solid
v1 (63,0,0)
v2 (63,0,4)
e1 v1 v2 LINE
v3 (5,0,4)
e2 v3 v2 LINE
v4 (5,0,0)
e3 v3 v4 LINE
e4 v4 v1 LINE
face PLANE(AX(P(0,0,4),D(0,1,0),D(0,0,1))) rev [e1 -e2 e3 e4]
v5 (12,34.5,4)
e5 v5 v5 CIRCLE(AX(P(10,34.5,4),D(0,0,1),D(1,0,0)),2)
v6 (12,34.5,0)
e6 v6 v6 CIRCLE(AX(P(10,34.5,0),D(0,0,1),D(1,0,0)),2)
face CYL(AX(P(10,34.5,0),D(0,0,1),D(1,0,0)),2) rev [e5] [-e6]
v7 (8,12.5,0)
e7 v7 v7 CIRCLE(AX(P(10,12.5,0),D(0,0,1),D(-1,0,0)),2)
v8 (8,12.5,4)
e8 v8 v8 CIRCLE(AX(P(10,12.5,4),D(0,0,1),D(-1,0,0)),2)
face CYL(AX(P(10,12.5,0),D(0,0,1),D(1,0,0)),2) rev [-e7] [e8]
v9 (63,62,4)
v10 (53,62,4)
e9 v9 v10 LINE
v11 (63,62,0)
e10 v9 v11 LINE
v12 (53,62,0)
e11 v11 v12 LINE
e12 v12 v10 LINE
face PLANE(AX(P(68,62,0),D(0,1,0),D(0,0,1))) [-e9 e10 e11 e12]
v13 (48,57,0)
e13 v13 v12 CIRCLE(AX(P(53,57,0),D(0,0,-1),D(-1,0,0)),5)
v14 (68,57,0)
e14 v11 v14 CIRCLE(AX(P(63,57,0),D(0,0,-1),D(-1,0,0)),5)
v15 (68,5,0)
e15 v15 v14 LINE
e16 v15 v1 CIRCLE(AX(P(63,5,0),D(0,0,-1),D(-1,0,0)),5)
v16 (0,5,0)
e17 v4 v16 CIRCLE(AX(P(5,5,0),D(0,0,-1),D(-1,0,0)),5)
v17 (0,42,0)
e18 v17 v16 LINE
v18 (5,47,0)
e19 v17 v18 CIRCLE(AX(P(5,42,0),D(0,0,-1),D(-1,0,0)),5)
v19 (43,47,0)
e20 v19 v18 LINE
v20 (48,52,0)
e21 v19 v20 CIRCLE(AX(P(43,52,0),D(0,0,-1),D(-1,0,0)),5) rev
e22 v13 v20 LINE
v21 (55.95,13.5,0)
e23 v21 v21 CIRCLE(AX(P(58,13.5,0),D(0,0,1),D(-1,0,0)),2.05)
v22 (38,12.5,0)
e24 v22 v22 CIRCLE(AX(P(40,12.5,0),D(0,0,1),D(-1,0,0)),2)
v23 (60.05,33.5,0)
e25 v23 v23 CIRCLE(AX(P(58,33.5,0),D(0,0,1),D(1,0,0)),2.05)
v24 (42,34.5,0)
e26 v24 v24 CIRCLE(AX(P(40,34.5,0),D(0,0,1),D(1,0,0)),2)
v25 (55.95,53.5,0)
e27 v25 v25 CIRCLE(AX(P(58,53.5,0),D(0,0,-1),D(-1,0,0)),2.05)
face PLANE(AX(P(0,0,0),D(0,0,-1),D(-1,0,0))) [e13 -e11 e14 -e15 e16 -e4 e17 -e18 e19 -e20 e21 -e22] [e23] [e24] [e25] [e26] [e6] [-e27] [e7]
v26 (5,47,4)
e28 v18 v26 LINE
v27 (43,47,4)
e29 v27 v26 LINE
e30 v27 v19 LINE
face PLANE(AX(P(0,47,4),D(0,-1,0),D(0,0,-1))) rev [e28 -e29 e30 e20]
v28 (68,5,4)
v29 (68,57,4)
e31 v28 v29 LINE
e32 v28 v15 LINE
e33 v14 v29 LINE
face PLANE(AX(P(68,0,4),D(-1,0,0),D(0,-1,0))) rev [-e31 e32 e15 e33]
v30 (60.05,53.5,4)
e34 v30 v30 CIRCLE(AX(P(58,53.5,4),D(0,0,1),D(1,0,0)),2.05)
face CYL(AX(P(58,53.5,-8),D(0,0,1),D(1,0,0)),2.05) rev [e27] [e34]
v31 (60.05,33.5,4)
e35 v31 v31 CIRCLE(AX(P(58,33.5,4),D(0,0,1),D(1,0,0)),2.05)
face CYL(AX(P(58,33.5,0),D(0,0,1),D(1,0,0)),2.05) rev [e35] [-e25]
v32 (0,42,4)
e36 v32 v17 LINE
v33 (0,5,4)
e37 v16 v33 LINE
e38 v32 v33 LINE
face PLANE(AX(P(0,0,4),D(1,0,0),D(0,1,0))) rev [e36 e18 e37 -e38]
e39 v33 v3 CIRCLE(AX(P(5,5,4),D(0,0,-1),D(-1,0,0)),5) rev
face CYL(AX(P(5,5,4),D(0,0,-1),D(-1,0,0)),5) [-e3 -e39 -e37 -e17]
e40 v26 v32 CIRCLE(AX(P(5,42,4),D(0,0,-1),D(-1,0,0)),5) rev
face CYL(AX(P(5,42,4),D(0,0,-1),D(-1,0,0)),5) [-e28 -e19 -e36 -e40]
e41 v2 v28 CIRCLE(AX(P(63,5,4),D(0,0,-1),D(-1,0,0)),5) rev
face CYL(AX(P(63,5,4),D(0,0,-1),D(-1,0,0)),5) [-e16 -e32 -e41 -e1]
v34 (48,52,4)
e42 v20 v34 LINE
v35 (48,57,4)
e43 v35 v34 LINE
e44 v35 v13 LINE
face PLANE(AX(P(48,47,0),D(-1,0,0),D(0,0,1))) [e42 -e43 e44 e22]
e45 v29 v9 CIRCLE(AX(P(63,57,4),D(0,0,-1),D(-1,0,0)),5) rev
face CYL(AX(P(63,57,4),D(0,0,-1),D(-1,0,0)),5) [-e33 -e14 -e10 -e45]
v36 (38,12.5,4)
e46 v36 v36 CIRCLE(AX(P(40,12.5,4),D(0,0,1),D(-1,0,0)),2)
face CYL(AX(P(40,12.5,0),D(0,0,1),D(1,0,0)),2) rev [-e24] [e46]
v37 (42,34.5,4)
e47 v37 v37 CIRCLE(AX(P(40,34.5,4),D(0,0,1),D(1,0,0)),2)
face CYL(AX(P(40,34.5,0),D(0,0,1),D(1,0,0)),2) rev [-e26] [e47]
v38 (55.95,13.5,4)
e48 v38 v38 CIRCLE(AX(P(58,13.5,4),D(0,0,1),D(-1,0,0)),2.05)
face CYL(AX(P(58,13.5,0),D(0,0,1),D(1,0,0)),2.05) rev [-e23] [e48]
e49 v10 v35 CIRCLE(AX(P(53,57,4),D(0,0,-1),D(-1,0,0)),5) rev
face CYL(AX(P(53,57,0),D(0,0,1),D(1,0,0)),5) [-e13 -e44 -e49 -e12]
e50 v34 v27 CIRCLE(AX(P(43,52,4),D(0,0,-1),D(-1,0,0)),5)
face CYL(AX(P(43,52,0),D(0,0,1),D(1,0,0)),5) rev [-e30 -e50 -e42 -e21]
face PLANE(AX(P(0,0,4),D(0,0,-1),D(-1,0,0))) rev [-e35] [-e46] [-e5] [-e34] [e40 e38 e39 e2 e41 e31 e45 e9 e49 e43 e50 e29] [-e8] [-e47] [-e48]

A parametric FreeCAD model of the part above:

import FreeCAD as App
import Part
import Sketcher

V = App.Vector
Q = App.Units.Quantity


def edges_at(feature, points):
    """Names of the edges that pass closest to the given points."""
    edges = feature.Shape.Edges
    near = lambda p: min(range(len(edges)), key=lambda i: edges[i].distToShape(Part.Vertex(*p))[0])
    return sorted({f"Edge{near(p) + 1}" for p in points})

doc = App.newDocument("Part")
body = doc.addObject("PartDesign::Body", "Body")

# Sketch on XY plane
sketch1 = doc.addObject("Sketcher::SketchObject", "Sketch")
body.addObject(sketch1)
sketch1.AttachmentSupport = (doc.XY_Plane, [""])
sketch1.MapMode = "FlatFace"
sketch1.addGeometry([
    Part.LineSegment(V(0, 47, 0), V(0, 0, 0)),
    Part.LineSegment(V(0, 0, 0), V(68, 0, 0)),
    Part.LineSegment(V(68, 0, 0), V(68, 47, 0)),
    Part.LineSegment(V(68, 47, 0), V(0, 47, 0)),
], False)
sketch1.addConstraint([
    Sketcher.Constraint("Coincident", 0, 2, 1, 1),
    Sketcher.Constraint("Coincident", 1, 2, 2, 1),
    Sketcher.Constraint("Coincident", 2, 2, 3, 1),
    Sketcher.Constraint("Coincident", 3, 2, 0, 1),
    Sketcher.Constraint("Vertical", 0),
    Sketcher.Constraint("Horizontal", 1),
    Sketcher.Constraint("Vertical", 2),
    Sketcher.Constraint("Horizontal", 3),
    Sketcher.Constraint("Coincident", 0, 2, -1, 1),
    Sketcher.Constraint("DistanceX", 1, 1, 1, 2, Q("68 mm")),
    Sketcher.Constraint("DistanceY", 0, 2, 0, 1, Q("47 mm")),
])
pad1 = doc.addObject("PartDesign::Pad", "Pad")
body.addObject(pad1)
pad1.Profile = sketch1
pad1.Length = 4

# Sketch on XY plane
sketch2 = doc.addObject("Sketcher::SketchObject", "Sketch001")
body.addObject(sketch2)
sketch2.AttachmentSupport = (doc.XY_Plane, [""])
sketch2.MapMode = "FlatFace"
sketch2.AttachmentOffset = App.Placement(V(0, 0, 4), App.Rotation())
sketch2.addGeometry([
    Part.Circle(V(10, 34.5, 0), V(0, 0, 1), 2),  # 0
    Part.Circle(V(10, 12.5, 0), V(0, 0, 1), 2),  # 1
    Part.Circle(V(40, 34.5, 0), V(0, 0, 1), 2),  # 2
    Part.Circle(V(40, 12.5, 0), V(0, 0, 1), 2),  # 3
    Part.Circle(V(58, 33.5, 0), V(0, 0, 1), 2),  # 4
    Part.Circle(V(58, 13.5, 0), V(0, 0, 1), 2),  # 5
], False)
sketch2.addConstraint([
    Sketcher.Constraint("Equal", 0, 1),
    Sketcher.Constraint("Equal", 1, 2),
    Sketcher.Constraint("Equal", 2, 3),
    Sketcher.Constraint("Equal", 4, 5),
    Sketcher.Constraint("Horizontal", 0, 3, 2, 3),
    Sketcher.Constraint("Horizontal", 1, 3, 3, 3),
    Sketcher.Constraint("Vertical", 0, 3, 1, 3),
    Sketcher.Constraint("Vertical", 2, 3, 3, 3),
    Sketcher.Constraint("Vertical", 4, 3, 5, 3),
    Sketcher.Constraint("Diameter", 0, Q("4 mm")),
    Sketcher.Constraint("Diameter", 4, Q("4.1 mm")),
    Sketcher.Constraint("DistanceX", -1, 1, 0, 3, Q("10 mm")),
    Sketcher.Constraint("DistanceX", -1, 1, 2, 3, Q("40 mm")),
    Sketcher.Constraint("DistanceX", -1, 1, 4, 3, Q("58 mm")),
    Sketcher.Constraint("DistanceY", 1, 3, 0, 3, Q("22 mm")),
    Sketcher.Constraint("DistanceY", 4, 3, 2, 3, Q("1 mm")),
    Sketcher.Constraint("DistanceY", 3, 3, 5, 3, Q("1 mm")),
    Sketcher.Constraint("DistanceY", -1, 1, 0, 3, Q("34.5 mm")),
])
pocket1 = doc.addObject("PartDesign::Pocket", "Pocket")
body.addObject(pocket1)
pocket1.Profile = sketch2
pocket1.Length = 4

# Sketch on XY plane
sketch3 = doc.addObject("Sketcher::SketchObject", "Sketch002")
body.addObject(sketch3)
sketch3.AttachmentSupport = (doc.XY_Plane, [""])
sketch3.MapMode = "FlatFace"
sketch3.AttachmentOffset = App.Placement(V(0, 0, 4), App.Rotation())
sketch3.addGeometry([
    Part.LineSegment(V(48, 62, 0), V(48, 47, 0)),
    Part.LineSegment(V(48, 47, 0), V(68, 47, 0)),
    Part.LineSegment(V(68, 47, 0), V(68, 62, 0)),
    Part.LineSegment(V(68, 62, 0), V(48, 62, 0)),
], False)
sketch3.addConstraint([
    Sketcher.Constraint("Coincident", 0, 2, 1, 1),
    Sketcher.Constraint("Coincident", 1, 2, 2, 1),
    Sketcher.Constraint("Coincident", 2, 2, 3, 1),
    Sketcher.Constraint("Coincident", 3, 2, 0, 1),
    Sketcher.Constraint("Vertical", 0),
    Sketcher.Constraint("Horizontal", 1),
    Sketcher.Constraint("Vertical", 2),
    Sketcher.Constraint("Horizontal", 3),
    Sketcher.Constraint("DistanceX", 1, 1, 1, 2, Q("20 mm")),
    Sketcher.Constraint("DistanceY", 0, 2, 0, 1, Q("15 mm")),
    Sketcher.Constraint("DistanceX", -1, 1, 0, 2, Q("48 mm")),
    Sketcher.Constraint("DistanceY", -1, 1, 0, 2, Q("47 mm")),
])
pad2 = doc.addObject("PartDesign::Pad", "Pad001")
body.addObject(pad2)
pad2.Profile = sketch3
pad2.Length = 4
pad2.Reversed = True

# Sketch on XY plane
sketch4 = doc.addObject("Sketcher::SketchObject", "Sketch003")
body.addObject(sketch4)
sketch4.AttachmentSupport = (doc.XY_Plane, [""])
sketch4.MapMode = "FlatFace"
sketch4.AttachmentOffset = App.Placement(V(0, 0, 4), App.Rotation())
sketch4.addGeometry([
    Part.Circle(V(58, 33.5, 0), V(0, 0, 1), 2),
    Part.Circle(V(58, 53.5, 0), V(0, 0, 1), 2),
], False)
sketch4.addConstraint([
    Sketcher.Constraint("Equal", 0, 1),
    Sketcher.Constraint("Vertical", 0, 3, 1, 3),
    Sketcher.Constraint("Diameter", 0, Q("4.1 mm")),
    Sketcher.Constraint("DistanceX", -1, 1, 0, 3, Q("58 mm")),
    Sketcher.Constraint("DistanceY", 0, 3, 1, 3, Q("20 mm")),
    Sketcher.Constraint("DistanceY", -1, 1, 0, 3, Q("33.5 mm")),
])
pocket2 = doc.addObject("PartDesign::Pocket", "Pocket001")
body.addObject(pocket2)
pocket2.Profile = sketch4
pocket2.Length = 12
doc.recompute()

fillet = doc.addObject("PartDesign::Fillet", "Fillet")
body.addObject(fillet)
fillet.Base = (pocket2, edges_at(pocket2, [
    (68, 62, 2),
    (48, 47, 2),
    (48, 62, 2),
    (0, 47, 2),
    (68, 0, 2),
    (0, 0, 2),
]))
fillet.Radius = 5

doc.recompute()
